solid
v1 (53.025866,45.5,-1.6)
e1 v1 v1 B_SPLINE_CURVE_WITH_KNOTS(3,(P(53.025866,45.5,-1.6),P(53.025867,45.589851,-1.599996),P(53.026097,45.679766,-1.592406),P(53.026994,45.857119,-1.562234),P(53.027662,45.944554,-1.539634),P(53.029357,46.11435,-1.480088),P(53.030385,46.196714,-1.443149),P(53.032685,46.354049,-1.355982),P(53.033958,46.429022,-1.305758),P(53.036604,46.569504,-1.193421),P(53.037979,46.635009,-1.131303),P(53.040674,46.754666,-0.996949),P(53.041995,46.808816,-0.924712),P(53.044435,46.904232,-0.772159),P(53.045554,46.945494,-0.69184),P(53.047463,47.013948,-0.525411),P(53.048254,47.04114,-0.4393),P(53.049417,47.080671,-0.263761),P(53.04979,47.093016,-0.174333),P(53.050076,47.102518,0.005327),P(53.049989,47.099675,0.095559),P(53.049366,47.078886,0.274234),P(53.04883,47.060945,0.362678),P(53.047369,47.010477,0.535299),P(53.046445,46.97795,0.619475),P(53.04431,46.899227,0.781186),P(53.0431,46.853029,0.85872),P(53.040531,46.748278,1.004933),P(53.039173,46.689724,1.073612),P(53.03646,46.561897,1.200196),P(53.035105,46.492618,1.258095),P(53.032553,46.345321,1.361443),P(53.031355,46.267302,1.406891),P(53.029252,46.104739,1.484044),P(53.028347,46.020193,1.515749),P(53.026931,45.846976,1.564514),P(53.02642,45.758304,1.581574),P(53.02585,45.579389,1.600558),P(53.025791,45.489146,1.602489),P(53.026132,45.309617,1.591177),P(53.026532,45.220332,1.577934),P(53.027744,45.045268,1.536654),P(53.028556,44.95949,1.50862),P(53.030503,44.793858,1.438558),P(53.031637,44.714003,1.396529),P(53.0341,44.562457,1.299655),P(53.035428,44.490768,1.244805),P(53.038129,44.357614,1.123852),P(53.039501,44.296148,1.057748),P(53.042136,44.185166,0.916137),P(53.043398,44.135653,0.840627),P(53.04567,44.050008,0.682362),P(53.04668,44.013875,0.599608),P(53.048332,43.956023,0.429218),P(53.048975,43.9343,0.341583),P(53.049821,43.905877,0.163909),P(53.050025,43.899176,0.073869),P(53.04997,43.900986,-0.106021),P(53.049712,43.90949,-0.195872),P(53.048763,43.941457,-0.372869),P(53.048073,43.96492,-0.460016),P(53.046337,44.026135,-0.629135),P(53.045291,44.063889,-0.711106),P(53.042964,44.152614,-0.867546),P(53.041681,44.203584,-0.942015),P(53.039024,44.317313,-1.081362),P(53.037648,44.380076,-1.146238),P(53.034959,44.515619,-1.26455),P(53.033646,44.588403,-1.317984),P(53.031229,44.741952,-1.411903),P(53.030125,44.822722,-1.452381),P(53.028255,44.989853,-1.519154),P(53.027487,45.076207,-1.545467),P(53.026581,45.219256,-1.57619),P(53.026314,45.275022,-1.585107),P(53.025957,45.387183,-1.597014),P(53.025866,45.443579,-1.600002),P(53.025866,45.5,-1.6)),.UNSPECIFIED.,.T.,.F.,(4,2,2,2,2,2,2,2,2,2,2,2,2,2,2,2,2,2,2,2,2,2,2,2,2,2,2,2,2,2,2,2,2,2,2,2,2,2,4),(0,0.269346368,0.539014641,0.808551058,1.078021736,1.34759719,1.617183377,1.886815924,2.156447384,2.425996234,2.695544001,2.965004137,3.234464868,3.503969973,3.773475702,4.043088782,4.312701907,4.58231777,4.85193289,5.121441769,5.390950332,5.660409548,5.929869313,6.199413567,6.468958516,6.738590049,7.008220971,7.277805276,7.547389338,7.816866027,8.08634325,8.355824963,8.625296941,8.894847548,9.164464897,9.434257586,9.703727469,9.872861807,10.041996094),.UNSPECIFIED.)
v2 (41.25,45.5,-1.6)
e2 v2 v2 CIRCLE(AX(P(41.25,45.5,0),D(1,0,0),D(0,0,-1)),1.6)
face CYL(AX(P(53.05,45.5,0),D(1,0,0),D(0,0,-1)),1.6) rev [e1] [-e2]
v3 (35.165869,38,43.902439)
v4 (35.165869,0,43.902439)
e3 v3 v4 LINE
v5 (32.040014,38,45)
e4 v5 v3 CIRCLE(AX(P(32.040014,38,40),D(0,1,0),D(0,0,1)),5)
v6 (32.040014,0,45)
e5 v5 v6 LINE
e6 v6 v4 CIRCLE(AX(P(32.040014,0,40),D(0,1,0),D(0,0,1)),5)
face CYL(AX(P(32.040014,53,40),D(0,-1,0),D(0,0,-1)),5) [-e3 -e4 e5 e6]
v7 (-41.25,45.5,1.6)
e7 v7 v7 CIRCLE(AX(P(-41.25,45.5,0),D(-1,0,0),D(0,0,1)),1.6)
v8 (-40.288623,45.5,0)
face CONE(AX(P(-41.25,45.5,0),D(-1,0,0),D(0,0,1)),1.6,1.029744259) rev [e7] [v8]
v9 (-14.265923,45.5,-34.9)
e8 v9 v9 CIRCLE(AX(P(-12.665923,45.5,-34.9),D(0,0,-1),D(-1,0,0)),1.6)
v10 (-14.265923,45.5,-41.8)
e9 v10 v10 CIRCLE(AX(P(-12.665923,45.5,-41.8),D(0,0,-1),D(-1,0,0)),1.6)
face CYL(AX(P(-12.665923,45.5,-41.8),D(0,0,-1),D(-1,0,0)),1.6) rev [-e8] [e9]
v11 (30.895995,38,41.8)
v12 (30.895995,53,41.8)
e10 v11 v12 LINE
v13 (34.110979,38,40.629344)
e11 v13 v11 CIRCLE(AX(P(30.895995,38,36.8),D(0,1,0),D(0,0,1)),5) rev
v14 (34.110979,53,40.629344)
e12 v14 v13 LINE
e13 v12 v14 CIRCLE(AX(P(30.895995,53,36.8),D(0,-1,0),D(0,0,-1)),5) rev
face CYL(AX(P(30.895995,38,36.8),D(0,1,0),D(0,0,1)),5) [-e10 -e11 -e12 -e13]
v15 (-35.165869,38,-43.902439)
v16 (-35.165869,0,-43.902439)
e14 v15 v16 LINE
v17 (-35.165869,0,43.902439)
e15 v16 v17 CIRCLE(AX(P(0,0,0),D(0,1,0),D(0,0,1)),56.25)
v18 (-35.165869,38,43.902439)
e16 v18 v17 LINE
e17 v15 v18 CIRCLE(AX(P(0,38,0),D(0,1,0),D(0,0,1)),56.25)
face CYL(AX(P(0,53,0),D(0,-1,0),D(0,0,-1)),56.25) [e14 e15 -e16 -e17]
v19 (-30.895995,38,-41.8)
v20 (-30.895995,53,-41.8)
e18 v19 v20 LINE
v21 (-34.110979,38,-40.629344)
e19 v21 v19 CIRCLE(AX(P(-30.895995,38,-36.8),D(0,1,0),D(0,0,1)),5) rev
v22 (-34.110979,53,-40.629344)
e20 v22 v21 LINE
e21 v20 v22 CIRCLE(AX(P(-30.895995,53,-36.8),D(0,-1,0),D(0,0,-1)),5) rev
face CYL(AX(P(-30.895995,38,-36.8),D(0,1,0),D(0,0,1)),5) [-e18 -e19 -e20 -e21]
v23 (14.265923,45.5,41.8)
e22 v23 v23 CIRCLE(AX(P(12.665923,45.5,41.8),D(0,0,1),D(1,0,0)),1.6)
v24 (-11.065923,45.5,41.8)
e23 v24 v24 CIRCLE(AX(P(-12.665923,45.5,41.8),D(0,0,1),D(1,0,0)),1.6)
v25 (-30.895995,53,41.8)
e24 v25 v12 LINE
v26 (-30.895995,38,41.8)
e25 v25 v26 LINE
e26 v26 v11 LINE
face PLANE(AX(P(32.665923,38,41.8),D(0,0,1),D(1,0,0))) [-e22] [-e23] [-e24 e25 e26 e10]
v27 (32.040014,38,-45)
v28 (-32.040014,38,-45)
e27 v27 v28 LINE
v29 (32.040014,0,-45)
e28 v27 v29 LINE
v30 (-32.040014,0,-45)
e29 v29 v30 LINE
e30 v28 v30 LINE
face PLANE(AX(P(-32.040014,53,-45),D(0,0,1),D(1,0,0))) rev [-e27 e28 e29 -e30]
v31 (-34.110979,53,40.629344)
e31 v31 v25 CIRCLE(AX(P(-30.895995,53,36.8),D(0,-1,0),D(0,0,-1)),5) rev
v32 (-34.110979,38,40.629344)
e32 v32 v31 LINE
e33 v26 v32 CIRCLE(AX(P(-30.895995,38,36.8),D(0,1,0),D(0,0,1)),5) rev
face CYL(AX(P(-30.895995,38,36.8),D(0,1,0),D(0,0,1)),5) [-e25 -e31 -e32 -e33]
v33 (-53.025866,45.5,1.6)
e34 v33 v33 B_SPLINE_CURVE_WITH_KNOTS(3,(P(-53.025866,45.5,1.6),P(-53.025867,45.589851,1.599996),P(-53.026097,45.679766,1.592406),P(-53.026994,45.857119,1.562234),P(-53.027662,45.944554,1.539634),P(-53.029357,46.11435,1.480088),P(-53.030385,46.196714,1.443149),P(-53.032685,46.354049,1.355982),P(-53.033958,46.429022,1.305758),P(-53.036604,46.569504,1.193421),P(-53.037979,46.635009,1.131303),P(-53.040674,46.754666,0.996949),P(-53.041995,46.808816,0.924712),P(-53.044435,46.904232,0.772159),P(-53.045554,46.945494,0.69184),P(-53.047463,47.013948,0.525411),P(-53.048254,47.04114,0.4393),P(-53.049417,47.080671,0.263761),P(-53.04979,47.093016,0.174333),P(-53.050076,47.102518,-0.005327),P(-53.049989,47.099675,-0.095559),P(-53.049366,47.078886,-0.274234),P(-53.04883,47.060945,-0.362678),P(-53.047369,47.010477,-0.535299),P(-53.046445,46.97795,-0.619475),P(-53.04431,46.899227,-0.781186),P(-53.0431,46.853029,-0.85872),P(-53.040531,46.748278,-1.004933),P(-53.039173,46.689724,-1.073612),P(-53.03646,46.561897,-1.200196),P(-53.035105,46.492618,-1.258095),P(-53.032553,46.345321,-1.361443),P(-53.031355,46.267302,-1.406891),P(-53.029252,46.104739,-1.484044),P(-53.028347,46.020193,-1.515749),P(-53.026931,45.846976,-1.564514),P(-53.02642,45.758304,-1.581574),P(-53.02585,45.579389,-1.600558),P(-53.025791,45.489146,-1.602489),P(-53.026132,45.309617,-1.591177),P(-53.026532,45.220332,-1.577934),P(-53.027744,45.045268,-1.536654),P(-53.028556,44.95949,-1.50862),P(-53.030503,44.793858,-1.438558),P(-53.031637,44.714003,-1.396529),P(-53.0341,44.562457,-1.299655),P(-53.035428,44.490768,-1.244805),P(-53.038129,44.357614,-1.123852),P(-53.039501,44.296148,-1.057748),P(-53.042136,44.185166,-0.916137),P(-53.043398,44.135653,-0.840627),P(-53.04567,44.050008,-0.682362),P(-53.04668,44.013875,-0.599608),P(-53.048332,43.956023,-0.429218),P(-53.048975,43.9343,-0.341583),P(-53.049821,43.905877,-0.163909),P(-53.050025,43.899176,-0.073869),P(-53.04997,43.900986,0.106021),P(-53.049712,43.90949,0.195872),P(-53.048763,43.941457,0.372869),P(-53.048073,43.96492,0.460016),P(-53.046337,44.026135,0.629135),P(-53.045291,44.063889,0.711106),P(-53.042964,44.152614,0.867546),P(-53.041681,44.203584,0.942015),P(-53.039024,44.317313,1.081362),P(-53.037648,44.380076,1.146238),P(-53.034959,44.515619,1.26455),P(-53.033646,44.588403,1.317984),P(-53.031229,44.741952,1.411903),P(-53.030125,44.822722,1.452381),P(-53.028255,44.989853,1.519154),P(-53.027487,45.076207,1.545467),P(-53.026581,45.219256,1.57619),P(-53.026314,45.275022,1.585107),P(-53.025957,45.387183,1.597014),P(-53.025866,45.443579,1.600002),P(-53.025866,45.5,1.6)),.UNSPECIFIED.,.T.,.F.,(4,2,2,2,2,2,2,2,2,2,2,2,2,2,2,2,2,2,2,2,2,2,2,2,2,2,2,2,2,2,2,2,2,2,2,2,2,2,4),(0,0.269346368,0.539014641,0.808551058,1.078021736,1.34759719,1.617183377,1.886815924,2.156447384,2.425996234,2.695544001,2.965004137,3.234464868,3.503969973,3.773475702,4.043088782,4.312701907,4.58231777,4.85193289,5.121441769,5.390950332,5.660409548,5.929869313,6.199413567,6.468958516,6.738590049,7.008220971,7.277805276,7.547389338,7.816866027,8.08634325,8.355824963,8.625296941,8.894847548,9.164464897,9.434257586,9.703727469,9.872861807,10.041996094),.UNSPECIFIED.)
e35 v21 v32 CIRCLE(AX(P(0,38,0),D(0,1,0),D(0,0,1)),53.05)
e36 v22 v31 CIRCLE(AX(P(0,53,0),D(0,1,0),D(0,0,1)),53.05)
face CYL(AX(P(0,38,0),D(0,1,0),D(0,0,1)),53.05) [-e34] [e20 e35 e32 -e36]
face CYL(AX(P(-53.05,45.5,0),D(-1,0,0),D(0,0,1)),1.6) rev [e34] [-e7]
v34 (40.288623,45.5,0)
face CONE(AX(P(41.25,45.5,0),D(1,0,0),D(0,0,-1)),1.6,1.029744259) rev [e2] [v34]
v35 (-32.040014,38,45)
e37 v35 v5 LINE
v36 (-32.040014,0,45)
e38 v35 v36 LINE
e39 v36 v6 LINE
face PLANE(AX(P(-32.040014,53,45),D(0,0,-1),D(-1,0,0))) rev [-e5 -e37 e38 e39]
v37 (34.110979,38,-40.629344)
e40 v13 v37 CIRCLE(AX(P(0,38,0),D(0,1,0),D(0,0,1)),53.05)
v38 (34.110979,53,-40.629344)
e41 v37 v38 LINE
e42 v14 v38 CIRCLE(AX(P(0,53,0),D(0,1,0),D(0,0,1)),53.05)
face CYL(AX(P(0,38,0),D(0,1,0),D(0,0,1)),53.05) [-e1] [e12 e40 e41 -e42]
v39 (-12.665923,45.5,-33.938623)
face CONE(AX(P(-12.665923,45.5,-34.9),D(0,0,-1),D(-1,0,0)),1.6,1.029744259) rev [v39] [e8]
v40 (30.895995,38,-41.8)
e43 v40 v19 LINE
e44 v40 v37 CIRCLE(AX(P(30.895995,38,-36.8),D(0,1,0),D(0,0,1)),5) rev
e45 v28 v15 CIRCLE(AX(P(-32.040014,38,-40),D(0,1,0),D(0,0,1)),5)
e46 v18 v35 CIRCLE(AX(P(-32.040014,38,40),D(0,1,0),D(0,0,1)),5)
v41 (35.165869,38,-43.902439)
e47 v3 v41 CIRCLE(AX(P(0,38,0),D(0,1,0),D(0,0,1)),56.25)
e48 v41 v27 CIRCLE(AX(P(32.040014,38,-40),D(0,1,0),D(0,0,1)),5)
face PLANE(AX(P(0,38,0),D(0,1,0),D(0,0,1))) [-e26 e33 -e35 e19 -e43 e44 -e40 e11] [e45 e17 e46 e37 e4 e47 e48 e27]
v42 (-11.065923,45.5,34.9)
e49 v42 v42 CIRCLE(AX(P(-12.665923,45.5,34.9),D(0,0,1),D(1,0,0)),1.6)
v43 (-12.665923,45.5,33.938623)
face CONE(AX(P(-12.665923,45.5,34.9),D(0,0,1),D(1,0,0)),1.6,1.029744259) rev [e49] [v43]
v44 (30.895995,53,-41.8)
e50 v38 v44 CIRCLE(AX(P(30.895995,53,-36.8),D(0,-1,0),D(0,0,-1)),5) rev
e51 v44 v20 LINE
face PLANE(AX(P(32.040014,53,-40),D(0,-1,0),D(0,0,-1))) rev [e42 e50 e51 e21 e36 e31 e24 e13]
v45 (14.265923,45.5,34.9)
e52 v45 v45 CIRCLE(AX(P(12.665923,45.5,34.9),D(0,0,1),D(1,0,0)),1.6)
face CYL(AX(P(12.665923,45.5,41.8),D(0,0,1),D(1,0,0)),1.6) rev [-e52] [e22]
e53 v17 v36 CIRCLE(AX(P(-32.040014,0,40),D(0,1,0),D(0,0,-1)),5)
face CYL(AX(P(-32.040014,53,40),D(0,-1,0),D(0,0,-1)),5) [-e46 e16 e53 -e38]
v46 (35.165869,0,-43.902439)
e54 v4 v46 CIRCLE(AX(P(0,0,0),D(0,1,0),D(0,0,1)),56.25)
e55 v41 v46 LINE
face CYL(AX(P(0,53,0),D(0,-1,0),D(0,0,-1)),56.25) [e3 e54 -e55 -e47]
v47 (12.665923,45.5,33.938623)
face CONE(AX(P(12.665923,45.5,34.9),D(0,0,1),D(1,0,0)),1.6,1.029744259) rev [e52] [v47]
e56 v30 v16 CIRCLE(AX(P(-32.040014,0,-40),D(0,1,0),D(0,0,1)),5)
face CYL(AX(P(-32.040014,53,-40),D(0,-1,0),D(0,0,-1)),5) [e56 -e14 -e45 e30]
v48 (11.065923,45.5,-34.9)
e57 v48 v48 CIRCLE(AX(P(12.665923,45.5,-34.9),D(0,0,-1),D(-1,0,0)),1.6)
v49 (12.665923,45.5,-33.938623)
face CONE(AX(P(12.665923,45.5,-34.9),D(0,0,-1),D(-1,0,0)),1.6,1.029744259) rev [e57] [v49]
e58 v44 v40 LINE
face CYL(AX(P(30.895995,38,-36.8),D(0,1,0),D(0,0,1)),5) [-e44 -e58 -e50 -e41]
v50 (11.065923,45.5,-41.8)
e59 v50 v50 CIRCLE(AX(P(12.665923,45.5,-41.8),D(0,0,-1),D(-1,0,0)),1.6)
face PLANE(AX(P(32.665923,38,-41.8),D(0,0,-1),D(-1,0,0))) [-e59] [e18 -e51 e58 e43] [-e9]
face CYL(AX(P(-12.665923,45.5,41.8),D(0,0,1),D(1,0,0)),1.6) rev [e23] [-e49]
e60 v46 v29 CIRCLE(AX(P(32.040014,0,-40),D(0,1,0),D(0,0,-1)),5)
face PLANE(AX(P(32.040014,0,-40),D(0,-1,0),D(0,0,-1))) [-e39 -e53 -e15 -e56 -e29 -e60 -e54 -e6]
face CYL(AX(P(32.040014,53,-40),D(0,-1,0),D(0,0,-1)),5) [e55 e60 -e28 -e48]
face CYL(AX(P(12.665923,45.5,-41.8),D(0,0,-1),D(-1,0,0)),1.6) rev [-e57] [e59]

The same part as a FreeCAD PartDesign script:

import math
import FreeCAD as App
import Part
import Sketcher
from FreeCAD import Vector
Q = App.Units.Quantity


def edges_at(feature, points):
    """Names of the edges that pass closest to the given points."""
    edges = feature.Shape.Edges
    near = lambda p: min(range(len(edges)), key=lambda i: edges[i].distToShape(Part.Vertex(*p))[0])
    return sorted({f"Edge{near(p) + 1}" for p in points})

doc = App.newDocument("Part")
body = doc.addObject("PartDesign::Body", "Body")

# Sketch on XZ plane
sketch1 = body.newObject("Sketcher::SketchObject", "Sketch")
sketch1.AttachmentSupport = (doc.getObject("XZ_Plane"), [""])
sketch1.MapMode = "FlatFace"
sketch1.addGeometry([
    Part.LineSegment(Vector(32, -45, 0), Vector(-32, -45, 0)),  # 0
    Part.ArcOfCircle(Part.Circle(Vector(-32, -40, 0), Vector(0, 0, 1), 5), math.radians(-129), math.radians(-90)),  # 1
    Part.ArcOfCircle(Part.Circle(Vector(0, 0, 0), Vector(0, 0, 1), 56.2), math.radians(129), math.radians(231)),  # 2
    Part.ArcOfCircle(Part.Circle(Vector(-32, 40, 0), Vector(0, 0, 1), 5), math.radians(90), math.radians(129)),  # 3
    Part.LineSegment(Vector(-32, 45, 0), Vector(32, 45, 0)),  # 4
    Part.ArcOfCircle(Part.Circle(Vector(32, 40, 0), Vector(0, 0, 1), 5), math.radians(51), math.radians(90)),  # 5
    Part.ArcOfCircle(Part.Circle(Vector(0, 0, 0), Vector(0, 0, 1), 56.2), math.radians(-51), math.radians(51)),  # 6
    Part.ArcOfCircle(Part.Circle(Vector(32, -40, 0), Vector(0, 0, 1), 5), math.radians(-90), math.radians(-51)),  # 7
], False)
sketch1.addConstraint([
    Sketcher.Constraint("Tangent", 0, 2, 1, 2),
    Sketcher.Constraint("Tangent", 1, 1, 2, 2),
    Sketcher.Constraint("Tangent", 2, 1, 3, 2),
    Sketcher.Constraint("Tangent", 3, 1, 4, 1),
    Sketcher.Constraint("Tangent", 4, 2, 5, 2),
    Sketcher.Constraint("Tangent", 5, 1, 6, 2),
    Sketcher.Constraint("Tangent", 6, 1, 7, 2),
    Sketcher.Constraint("Tangent", 7, 1, 0, 1),
    Sketcher.Constraint("Horizontal", 0),
    Sketcher.Constraint("Horizontal", 4),
    Sketcher.Constraint("Coincident", 2, 3, -1, 1),
    Sketcher.Constraint("Coincident", 6, 3, -1, 1),
    Sketcher.Constraint("Equal", 1, 3),
    Sketcher.Constraint("Equal", 3, 5),
    Sketcher.Constraint("Equal", 2, 6),
    Sketcher.Constraint("Equal", 5, 7),
    Sketcher.Constraint("Vertical", 1, 3, 3, 3),
    Sketcher.Constraint("Radius", 1, Q("5 mm")),
    Sketcher.Constraint("Radius", 2, Q("56.25 mm")),
    Sketcher.Constraint("DistanceY", 1, 3, -1, 1, Q("40 mm")),
])
pad1 = body.newObject("PartDesign::Pad", "Pad")
pad1.Profile = sketch1
pad1.Length = 53
pad1.Reversed = True

# Sketch on XZ plane
sketch2 = body.newObject("Sketcher::SketchObject", "Sketch001")
sketch2.AttachmentSupport = (doc.getObject("XZ_Plane"), [""])
sketch2.MapMode = "FlatFace"
sketch2.AttachmentOffset = App.Placement(Vector(0, 0, -38), App.Rotation())
sketch2.addGeometry([
    Part.LineSegment(Vector(34, -45, 0), Vector(-34, -45, 0)),  # 0
    Part.ArcOfCircle(Part.Circle(Vector(0, 0, 0), Vector(0, 0, 1), 56), math.radians(127), math.radians(233)),  # 1
    Part.LineSegment(Vector(-34, 45, 0), Vector(34, 45, 0)),  # 2
    Part.ArcOfCircle(Part.Circle(Vector(0, 0, 0), Vector(0, 0, 1), 56), math.radians(-53), math.radians(53)),  # 3
    Part.ArcOfCircle(Part.Circle(Vector(0, 0, 0), Vector(0, 0, 1), 53), math.radians(-52), math.radians(52)),  # 4
    Part.LineSegment(Vector(33, 42, 0), Vector(-33, 42, 0)),  # 5
    Part.ArcOfCircle(Part.Circle(Vector(0, 0, 0), Vector(0, 0, 1), 53), math.radians(128), math.radians(232)),  # 6
    Part.LineSegment(Vector(-33, -42, 0), Vector(33, -42, 0)),  # 7
], False)
sketch2.addConstraint([
    Sketcher.Constraint("Coincident", 0, 2, 1, 2),
    Sketcher.Constraint("Coincident", 1, 1, 2, 1),
    Sketcher.Constraint("Coincident", 2, 2, 3, 2),
    Sketcher.Constraint("Coincident", 3, 1, 0, 1),
    Sketcher.Constraint("Coincident", 4, 2, 5, 1),
    Sketcher.Constraint("Coincident", 5, 2, 6, 1),
    Sketcher.Constraint("Coincident", 6, 2, 7, 1),
    Sketcher.Constraint("Coincident", 7, 2, 4, 1),
    Sketcher.Constraint("Horizontal", 0),
    Sketcher.Constraint("Horizontal", 2),
    Sketcher.Constraint("Horizontal", 5),
    Sketcher.Constraint("Horizontal", 7),
    Sketcher.Constraint("Coincident", 1, 3, -1, 1),
    Sketcher.Constraint("Coincident", 3, 3, -1, 1),
    Sketcher.Constraint("Coincident", 4, 3, -1, 1),
    Sketcher.Constraint("Coincident", 6, 3, -1, 1),
    Sketcher.Constraint("Equal", 1, 3),
    Sketcher.Constraint("Equal", 4, 6),
    Sketcher.Constraint("Vertical", 0, 2, 1, 1),
    Sketcher.Constraint("Vertical", 5, 2, 6, 2),
    Sketcher.Constraint("Radius", 1, Q("56.25 mm")),
    Sketcher.Constraint("Radius", 4, Q("53.05 mm")),
    Sketcher.Constraint("DistanceX", 0, 2, 0, 1, Q("67.5 mm")),
    Sketcher.Constraint("DistanceY", -1, 1, 4, 2, Q("41.8 mm")),
])
pocket1 = body.newObject("PartDesign::Pocket", "Pocket")
pocket1.Profile = sketch2
pocket1.Length = 15

# Sketch on XY plane
sketch3 = body.newObject("Sketcher::SketchObject", "Sketch002")
sketch3.AttachmentSupport = (doc.getObject("XY_Plane"), [""])
sketch3.MapMode = "FlatFace"
sketch3.AttachmentOffset = App.Placement(Vector(0, 0, -41.8), App.Rotation())
sketch3.addGeometry([
    Part.Circle(Vector(-12.7, 45.5, 0), Vector(0, 0, 1), 1.6),
    Part.Circle(Vector(12.7, 45.5, 0), Vector(0, 0, 1), 1.6),
], False)
sketch3.addConstraint([
    Sketcher.Constraint("Equal", 0, 1),
    Sketcher.Constraint("Symmetric", 0, 3, 1, 3, -2),
    Sketcher.Constraint("Diameter", 0, Q("3.2 mm")),
    Sketcher.Constraint("DistanceY", -1, 1, 0, 3, Q("45.5 mm")),
    Sketcher.Constraint("DistanceX", 0, 3, -1, 1, Q("12.665923 mm")),
])
doc.recompute()
hole = body.newObject("PartDesign::Hole", "Hole")
hole.Profile = sketch3
hole.ThreadType = "None"
hole.Diameter = 3.2
hole.DepthType = "Dimension"
hole.Depth = 6.9
hole.DrillPoint = "Angled"
hole.DrillPointAngle = 118
hole.Reversed = True

# Sketch on XY plane
sketch4 = body.newObject("Sketcher::SketchObject", "Sketch003")
sketch4.AttachmentSupport = (doc.getObject("XY_Plane"), [""])
sketch4.MapMode = "FlatFace"
sketch4.AttachmentOffset = App.Placement(Vector(0, 0, 41.8), App.Rotation())
sketch4.addGeometry([
    Part.Circle(Vector(12.7, 45.5, 0), Vector(0, 0, 1), 1.6),
    Part.Circle(Vector(-12.7, 45.5, 0), Vector(0, 0, 1), 1.6),
], False)
sketch4.addConstraint([
    Sketcher.Constraint("Equal", 0, 1),
    Sketcher.Constraint("Symmetric", 0, 3, 1, 3, -2),
    Sketcher.Constraint("Diameter", 0, Q("3.2 mm")),
    Sketcher.Constraint("DistanceY", -1, 1, 0, 3, Q("45.5 mm")),
    Sketcher.Constraint("DistanceX", -1, 1, 0, 3, Q("12.665923 mm")),
])
doc.recompute()
hole2 = body.newObject("PartDesign::Hole", "Hole001")
hole2.Profile = sketch4
hole2.ThreadType = "None"
hole2.Diameter = 3.2
hole2.DepthType = "Dimension"
hole2.Depth = 6.9
hole2.DrillPoint = "Angled"
hole2.DrillPointAngle = 118
doc.recompute()

fillet = body.newObject("PartDesign::Fillet", "Fillet")
fillet.Base = (hole2, edges_at(hole2, [
    (-32.666, 45.5, -41.8),
    (32.666, 45.5, -41.8),
    (32.666, 45.5, 41.8),
    (-32.666, 45.5, 41.8),
]))
fillet.Radius = 5

# Sketch on XZ plane
sketch5 = body.newObject("Sketcher::SketchObject", "Sketch004")
sketch5.AttachmentSupport = (doc.getObject("XZ_Plane"), [""])
sketch5.MapMode = "FlatFace"
sketch5.AttachmentOffset = App.Placement(Vector(0, 0, -45.5), App.Rotation())
sketch5.addGeometry([
    Part.LineSegment(Vector(40.3, 0, 0), Vector(53, 0, 0)),
    Part.LineSegment(Vector(53, 0, 0), Vector(53, -1.6, 0)),
    Part.LineSegment(Vector(53, -1.6, 0), Vector(41.2, -1.6, 0)),
    Part.LineSegment(Vector(41.2, -1.6, 0), Vector(40.3, 0, 0)),
], False)
sketch5.addConstraint([
    Sketcher.Constraint("Coincident", 0, 2, 1, 1),
    Sketcher.Constraint("Coincident", 1, 2, 2, 1),
    Sketcher.Constraint("Coincident", 2, 2, 3, 1),
    Sketcher.Constraint("Coincident", 3, 2, 0, 1),
    Sketcher.Constraint("Horizontal", 0),
    Sketcher.Constraint("Vertical", 1),
    Sketcher.Constraint("Horizontal", 2),
    Sketcher.Constraint("PointOnObject", 0, 2, -1),
    Sketcher.Constraint("Angle", 3, Q("121 deg")),
    Sketcher.Constraint("DistanceX", 2, 2, 2, 1, Q("11.8 mm")),
    Sketcher.Constraint("DistanceY", 1, 2, 1, 1, Q("1.6 mm")),
    Sketcher.Constraint("DistanceX", -1, 1, 0, 2, Q("53.05 mm")),
])
groove = body.newObject("PartDesign::Groove", "Groove")
groove.Profile = sketch5
groove.ReferenceAxis = (sketch5, ["H_Axis"])
groove.Angle = 360
doc.recompute()

polarpattern = body.newObject("PartDesign::PolarPattern", "PolarPattern")
polarpattern.Originals = [groove]
polarpattern.Axis = (doc.getObject("Y_Axis"), [""])
polarpattern.Angle = 360
polarpattern.Occurrences = 2
body.Tip = polarpattern

doc.recompute()
